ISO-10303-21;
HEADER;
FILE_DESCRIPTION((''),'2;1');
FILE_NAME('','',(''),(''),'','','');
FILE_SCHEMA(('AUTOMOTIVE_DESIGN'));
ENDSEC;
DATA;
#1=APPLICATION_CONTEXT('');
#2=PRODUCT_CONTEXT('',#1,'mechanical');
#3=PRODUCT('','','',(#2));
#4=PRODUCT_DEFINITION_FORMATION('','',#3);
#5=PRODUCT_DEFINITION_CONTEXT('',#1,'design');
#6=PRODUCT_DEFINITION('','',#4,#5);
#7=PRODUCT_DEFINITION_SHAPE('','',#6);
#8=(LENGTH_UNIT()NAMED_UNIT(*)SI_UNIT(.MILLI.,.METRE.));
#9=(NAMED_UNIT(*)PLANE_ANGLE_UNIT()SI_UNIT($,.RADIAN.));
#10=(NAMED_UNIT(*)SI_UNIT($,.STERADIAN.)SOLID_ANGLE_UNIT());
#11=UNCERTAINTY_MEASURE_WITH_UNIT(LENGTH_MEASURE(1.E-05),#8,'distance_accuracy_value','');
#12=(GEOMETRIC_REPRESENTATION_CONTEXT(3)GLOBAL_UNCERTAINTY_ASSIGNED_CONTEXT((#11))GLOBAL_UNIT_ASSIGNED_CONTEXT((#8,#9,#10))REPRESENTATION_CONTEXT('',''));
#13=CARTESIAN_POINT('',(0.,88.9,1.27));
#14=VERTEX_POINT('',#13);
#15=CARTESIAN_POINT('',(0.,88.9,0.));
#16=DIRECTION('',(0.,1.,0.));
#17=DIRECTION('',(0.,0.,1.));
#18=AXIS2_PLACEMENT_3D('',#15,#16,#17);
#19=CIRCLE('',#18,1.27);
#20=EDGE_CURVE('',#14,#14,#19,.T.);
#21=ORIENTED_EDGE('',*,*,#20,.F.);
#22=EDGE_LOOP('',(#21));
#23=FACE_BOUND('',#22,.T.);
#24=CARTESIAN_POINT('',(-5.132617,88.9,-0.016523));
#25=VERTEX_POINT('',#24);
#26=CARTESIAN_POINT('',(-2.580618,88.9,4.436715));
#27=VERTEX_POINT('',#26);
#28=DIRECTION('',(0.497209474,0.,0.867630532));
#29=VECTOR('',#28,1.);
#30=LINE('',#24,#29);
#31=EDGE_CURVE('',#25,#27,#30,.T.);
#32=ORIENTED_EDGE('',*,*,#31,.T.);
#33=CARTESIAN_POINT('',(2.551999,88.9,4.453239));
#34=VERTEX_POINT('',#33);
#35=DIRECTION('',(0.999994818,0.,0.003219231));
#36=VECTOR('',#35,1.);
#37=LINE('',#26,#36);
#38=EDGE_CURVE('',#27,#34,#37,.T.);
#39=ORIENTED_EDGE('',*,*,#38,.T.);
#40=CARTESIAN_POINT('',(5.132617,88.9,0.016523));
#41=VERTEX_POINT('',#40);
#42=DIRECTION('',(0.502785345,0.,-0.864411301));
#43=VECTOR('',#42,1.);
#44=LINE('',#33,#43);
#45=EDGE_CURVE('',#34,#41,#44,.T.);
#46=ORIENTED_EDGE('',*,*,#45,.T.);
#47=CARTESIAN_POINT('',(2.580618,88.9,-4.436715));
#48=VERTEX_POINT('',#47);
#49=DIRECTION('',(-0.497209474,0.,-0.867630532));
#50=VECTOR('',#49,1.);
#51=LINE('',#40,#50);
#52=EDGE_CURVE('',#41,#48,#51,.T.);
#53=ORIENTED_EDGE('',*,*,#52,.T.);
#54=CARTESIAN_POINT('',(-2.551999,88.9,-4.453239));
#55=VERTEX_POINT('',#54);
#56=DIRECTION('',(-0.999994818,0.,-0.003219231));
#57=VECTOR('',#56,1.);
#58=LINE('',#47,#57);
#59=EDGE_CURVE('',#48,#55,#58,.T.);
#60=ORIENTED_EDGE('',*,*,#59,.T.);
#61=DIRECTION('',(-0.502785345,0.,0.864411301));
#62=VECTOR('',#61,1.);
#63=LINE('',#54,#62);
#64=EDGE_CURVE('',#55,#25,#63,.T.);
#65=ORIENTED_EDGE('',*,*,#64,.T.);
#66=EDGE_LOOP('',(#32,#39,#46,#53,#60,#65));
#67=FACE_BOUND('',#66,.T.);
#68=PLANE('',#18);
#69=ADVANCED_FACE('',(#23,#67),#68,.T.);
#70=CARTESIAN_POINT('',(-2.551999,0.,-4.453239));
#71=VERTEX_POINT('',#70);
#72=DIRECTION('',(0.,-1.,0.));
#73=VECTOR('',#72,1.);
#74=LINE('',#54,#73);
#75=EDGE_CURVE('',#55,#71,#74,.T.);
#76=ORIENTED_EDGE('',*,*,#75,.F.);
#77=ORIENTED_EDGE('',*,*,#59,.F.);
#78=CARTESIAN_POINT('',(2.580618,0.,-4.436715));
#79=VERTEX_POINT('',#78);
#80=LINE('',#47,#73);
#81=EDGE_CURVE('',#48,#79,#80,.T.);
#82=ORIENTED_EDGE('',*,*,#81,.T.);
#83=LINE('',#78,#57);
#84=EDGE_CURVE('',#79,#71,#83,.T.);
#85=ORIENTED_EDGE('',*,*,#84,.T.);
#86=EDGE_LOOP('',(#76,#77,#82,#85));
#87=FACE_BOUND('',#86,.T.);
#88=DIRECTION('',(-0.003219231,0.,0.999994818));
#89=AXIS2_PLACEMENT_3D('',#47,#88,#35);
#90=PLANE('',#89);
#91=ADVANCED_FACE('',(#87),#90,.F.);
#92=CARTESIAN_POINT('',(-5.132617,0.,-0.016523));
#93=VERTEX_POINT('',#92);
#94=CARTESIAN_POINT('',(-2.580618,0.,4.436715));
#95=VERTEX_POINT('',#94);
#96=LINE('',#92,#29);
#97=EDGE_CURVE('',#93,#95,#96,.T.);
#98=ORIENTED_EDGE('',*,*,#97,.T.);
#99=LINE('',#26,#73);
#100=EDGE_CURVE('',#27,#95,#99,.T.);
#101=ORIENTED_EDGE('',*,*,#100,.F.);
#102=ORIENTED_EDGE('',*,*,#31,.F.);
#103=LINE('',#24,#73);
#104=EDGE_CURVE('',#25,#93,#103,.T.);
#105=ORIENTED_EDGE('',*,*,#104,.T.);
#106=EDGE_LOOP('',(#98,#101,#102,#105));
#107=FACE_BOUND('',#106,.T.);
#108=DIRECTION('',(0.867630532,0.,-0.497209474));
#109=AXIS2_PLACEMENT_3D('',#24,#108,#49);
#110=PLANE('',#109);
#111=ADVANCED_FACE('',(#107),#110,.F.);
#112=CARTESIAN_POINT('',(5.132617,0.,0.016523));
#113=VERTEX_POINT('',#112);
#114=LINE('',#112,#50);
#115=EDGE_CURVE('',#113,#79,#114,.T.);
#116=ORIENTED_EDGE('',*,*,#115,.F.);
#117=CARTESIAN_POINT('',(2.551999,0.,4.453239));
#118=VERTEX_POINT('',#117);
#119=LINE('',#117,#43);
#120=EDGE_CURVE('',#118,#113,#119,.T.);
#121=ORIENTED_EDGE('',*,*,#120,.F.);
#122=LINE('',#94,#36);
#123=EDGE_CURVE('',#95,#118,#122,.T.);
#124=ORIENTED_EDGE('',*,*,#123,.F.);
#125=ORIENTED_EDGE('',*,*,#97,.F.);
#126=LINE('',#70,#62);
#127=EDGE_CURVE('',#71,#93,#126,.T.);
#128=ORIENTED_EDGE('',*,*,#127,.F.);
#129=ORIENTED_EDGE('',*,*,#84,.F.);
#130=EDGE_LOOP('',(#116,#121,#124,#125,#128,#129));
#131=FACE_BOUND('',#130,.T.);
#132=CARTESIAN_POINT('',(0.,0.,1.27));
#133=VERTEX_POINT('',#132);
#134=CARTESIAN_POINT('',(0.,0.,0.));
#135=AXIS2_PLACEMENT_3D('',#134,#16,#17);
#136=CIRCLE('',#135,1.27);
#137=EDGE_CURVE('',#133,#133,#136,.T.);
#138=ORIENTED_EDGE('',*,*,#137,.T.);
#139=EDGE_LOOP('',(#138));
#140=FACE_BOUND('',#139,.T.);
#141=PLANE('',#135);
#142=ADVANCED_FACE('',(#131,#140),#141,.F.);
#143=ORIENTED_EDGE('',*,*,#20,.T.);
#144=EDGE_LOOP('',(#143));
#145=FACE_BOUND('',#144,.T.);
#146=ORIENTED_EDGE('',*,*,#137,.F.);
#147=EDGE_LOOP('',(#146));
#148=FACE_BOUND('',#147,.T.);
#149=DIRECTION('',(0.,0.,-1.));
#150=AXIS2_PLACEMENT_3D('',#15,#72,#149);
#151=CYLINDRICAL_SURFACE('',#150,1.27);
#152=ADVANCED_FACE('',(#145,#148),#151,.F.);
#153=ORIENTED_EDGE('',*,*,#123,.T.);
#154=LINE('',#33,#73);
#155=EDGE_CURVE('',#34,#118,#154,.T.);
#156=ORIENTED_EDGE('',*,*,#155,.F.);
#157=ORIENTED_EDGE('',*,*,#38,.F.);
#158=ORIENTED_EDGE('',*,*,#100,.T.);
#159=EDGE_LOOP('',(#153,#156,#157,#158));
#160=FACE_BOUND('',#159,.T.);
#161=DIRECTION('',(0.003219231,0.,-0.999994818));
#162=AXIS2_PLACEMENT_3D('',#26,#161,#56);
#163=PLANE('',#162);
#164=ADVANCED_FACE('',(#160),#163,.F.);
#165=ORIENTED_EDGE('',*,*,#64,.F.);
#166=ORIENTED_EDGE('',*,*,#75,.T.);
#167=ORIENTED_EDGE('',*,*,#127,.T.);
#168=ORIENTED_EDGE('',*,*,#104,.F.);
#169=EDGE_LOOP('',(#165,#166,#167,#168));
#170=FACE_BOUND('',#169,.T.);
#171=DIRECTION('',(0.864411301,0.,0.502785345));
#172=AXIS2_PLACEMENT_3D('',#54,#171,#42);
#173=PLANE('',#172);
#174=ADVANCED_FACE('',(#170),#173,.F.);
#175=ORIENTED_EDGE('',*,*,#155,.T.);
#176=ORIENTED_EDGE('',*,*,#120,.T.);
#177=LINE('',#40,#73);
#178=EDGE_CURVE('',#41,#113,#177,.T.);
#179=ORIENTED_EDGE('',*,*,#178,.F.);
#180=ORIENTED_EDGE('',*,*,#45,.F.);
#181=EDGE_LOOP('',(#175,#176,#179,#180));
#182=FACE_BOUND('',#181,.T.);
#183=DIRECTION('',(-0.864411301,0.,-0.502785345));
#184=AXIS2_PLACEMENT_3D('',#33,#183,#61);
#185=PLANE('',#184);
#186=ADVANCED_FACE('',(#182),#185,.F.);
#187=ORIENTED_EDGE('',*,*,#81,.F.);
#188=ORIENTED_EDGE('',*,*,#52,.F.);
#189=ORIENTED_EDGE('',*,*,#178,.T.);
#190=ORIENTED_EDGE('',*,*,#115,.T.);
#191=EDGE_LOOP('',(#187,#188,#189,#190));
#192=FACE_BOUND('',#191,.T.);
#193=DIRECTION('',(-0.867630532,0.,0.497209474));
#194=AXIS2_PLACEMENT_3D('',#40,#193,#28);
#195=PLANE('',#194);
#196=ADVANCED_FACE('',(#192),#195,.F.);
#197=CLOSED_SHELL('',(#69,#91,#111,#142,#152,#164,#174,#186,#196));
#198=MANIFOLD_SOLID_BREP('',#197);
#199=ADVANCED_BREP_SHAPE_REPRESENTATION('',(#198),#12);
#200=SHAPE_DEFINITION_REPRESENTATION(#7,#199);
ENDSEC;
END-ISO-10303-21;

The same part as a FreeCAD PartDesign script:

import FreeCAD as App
import Part
import Sketcher
Q = App.Units.Quantity

doc = App.newDocument("Part")
params = doc.addObject("Spreadsheet::Sheet", "Params")
for row, (alias, value) in enumerate([
    ("sketch1_diameter", "0.1 in"),
    ("pad1_length", "3.5 in"),
], start=1):
    params.set(f"A{row}", alias)
    params.set(f"B{row}", "=" + value)
    params.setAlias(f"B{row}", alias)

body = doc.addObject("PartDesign::Body", "Body")

sketch1 = doc.addObject("Sketcher::SketchObject", "Sketch")
body.addObject(sketch1)
sketch1.AttachmentSupport = (doc.XZ_Plane, [""])
sketch1.MapMode = "FlatFace"
sketch1.addGeometry(Part.LineSegment(App.Vector(2.551999, 4.453239, 0), App.Vector(5.132617, 0.016523, 0)), False)
sketch1.addGeometry(Part.LineSegment(App.Vector(5.132617, 0.016523, 0), App.Vector(2.580618, -4.436715, 0)), False)
sketch1.addGeometry(Part.LineSegment(App.Vector(2.580618, -4.436715, 0), App.Vector(-2.551999, -4.453239, 0)), False)
sketch1.addGeometry(Part.LineSegment(App.Vector(-2.551999, -4.453239, 0), App.Vector(-5.132617, -0.016523, 0)), False)
sketch1.addGeometry(Part.LineSegment(App.Vector(-5.132617, -0.016523, 0), App.Vector(-2.580618, 4.436715, 0)), False)
sketch1.addGeometry(Part.LineSegment(App.Vector(-2.580618, 4.436715, 0), App.Vector(2.551999, 4.453239, 0)), False)
sketch1.addGeometry(Part.Circle(App.Vector(0, 0, 0), App.Vector(0, 0, 1), 1.27), False)
sketch1.addConstraint(Sketcher.Constraint("Coincident", 0, 2, 1, 1))
sketch1.addConstraint(Sketcher.Constraint("Coincident", 1, 2, 2, 1))
sketch1.addConstraint(Sketcher.Constraint("Coincident", 2, 2, 3, 1))
sketch1.addConstraint(Sketcher.Constraint("Coincident", 3, 2, 4, 1))
sketch1.addConstraint(Sketcher.Constraint("Coincident", 4, 2, 5, 1))
sketch1.addConstraint(Sketcher.Constraint("Coincident", 5, 2, 0, 1))
sketch1.addConstraint(Sketcher.Constraint("Coincident", 6, 3, -1, 1))
sketch1.addConstraint(Sketcher.Constraint("Symmetric", 0, 2, 3, 2, -1, 1))
sketch1.addConstraint(Sketcher.Constraint("Symmetric", 1, 2, 4, 2, -1, 1))
sketch1.addConstraint(Sketcher.Constraint("Symmetric", 2, 2, 5, 2, -1, 1))
sketch1.addConstraint(Sketcher.Constraint("Equal", 0, 1))
sketch1.addConstraint(Sketcher.Constraint("Equal", 1, 2))
sketch1.addConstraint(Sketcher.Constraint("Diameter", 6, Q("0.1 in")))
sketch1.addConstraint(Sketcher.Constraint("DistanceX", 2, 2, -1, 1, 2.551999))
sketch1.addConstraint(Sketcher.Constraint("DistanceX", 1, 2, 0, 2, 2.551999))
sketch1.addConstraint(Sketcher.Constraint("DistanceX", -1, 1, 1, 2, 2.580618))
sketch1.addConstraint(Sketcher.Constraint("DistanceY", 2, 2, -1, 1, 4.453239))
sketch1.setExpression("Constraints[12]", "Params.sketch1_diameter")
pad1 = doc.addObject("PartDesign::Pad", "Pad")
body.addObject(pad1)
pad1.Profile = sketch1
pad1.setExpression("Length", "Params.pad1_length")
pad1.Reversed = True

doc.recompute()
